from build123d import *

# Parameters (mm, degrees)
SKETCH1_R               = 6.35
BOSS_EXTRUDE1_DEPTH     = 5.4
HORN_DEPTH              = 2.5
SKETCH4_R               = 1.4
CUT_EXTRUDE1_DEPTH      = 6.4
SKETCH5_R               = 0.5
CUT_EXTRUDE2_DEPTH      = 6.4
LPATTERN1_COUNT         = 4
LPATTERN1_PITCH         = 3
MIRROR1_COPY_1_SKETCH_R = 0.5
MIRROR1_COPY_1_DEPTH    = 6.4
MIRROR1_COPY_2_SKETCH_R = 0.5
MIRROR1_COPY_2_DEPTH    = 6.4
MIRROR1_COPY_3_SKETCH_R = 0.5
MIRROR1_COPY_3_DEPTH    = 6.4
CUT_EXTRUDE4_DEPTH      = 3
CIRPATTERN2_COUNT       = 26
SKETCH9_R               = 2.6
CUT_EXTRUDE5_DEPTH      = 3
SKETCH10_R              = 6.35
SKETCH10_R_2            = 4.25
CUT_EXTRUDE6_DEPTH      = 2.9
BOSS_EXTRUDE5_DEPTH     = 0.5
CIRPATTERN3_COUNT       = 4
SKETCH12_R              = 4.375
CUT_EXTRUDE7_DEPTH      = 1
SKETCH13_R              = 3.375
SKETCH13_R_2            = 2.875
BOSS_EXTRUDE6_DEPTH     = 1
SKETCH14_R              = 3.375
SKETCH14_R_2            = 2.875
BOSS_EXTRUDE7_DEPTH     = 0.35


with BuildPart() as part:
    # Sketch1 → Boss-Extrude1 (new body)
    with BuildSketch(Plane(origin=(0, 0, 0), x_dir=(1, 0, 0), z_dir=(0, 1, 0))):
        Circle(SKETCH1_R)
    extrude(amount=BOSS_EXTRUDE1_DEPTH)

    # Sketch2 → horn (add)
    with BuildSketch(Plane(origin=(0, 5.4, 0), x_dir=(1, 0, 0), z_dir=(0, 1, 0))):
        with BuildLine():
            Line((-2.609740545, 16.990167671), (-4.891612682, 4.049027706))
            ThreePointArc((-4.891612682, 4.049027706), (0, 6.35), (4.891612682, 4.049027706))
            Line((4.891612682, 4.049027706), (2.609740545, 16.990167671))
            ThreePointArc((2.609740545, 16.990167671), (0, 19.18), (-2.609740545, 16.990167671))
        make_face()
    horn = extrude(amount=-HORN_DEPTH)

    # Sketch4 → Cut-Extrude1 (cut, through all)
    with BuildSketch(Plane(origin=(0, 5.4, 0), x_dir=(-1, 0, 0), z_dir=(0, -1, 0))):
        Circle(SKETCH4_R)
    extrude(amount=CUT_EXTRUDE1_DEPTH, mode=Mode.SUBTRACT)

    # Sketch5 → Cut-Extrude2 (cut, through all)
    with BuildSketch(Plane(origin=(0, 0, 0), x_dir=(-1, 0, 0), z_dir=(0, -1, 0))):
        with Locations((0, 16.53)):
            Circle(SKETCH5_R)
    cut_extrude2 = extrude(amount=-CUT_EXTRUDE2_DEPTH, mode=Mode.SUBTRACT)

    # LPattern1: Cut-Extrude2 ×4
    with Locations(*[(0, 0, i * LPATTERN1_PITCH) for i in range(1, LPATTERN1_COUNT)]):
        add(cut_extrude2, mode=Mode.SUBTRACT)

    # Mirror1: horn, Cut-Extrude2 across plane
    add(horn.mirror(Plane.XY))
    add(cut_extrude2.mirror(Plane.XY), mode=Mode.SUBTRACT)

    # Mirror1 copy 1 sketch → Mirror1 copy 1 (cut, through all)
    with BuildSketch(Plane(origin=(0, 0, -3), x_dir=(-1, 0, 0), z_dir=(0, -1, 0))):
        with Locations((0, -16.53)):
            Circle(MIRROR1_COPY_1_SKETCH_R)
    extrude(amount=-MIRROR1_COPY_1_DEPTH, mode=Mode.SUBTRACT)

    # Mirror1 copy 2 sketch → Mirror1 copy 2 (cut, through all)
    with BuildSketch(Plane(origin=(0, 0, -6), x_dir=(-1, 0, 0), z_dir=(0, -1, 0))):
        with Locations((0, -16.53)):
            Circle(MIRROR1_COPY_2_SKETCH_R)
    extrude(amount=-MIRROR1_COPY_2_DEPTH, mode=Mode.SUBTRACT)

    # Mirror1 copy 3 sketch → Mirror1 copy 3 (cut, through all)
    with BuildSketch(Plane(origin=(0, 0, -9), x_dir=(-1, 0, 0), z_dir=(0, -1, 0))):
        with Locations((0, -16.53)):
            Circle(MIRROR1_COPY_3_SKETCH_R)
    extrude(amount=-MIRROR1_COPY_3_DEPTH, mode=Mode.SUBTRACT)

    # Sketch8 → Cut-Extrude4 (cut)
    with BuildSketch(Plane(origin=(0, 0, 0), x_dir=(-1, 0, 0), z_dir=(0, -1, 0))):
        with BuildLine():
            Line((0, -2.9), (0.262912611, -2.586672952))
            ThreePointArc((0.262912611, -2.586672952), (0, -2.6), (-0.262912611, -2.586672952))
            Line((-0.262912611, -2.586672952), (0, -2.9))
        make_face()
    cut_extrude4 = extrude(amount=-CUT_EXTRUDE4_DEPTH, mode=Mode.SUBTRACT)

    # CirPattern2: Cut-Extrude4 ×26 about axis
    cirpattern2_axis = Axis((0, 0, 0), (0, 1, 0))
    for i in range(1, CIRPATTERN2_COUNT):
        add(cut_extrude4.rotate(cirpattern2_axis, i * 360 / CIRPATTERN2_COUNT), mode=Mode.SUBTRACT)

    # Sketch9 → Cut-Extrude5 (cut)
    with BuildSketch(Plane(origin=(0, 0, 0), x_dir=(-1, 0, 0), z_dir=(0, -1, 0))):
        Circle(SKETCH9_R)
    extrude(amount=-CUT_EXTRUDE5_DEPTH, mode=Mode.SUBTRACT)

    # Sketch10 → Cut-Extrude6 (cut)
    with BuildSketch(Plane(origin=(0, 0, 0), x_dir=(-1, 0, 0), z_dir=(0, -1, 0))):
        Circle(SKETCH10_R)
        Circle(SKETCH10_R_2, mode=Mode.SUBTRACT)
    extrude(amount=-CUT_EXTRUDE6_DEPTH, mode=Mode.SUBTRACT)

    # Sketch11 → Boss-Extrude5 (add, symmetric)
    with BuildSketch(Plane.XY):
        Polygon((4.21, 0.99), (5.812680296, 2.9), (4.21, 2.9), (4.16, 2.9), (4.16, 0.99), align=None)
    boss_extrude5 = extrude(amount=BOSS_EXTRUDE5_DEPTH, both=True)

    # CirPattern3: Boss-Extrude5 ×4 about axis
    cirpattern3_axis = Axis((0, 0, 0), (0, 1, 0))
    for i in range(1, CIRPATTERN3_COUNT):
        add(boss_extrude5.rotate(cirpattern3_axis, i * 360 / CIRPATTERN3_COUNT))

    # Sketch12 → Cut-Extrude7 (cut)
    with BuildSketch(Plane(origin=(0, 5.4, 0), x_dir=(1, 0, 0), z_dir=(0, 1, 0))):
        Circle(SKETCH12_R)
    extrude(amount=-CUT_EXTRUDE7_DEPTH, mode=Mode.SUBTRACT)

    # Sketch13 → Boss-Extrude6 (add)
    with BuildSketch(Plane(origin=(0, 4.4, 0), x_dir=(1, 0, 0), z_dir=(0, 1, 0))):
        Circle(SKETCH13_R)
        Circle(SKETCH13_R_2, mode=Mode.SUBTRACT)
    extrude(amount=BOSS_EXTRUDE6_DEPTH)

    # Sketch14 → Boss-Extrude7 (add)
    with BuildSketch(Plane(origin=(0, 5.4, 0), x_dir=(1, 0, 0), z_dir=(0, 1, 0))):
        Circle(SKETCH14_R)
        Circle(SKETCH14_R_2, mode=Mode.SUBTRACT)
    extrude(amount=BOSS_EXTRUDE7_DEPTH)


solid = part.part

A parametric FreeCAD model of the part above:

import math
import FreeCAD as App
import Part
import Sketcher
from FreeCAD import Vector
Q = App.Units.Quantity

doc = App.newDocument("Part")
params = doc.addObject("Spreadsheet::Sheet", "Params")
for row, (alias, value) in enumerate([
    ("sketch1_diameter", "12.7 mm"),
    ("pad1_length", "5.4 mm"),
    ("sketch2_radius", "6.35 mm"),
    ("sketch2_radius2", "2.65 mm"),
    ("pad2_length", "2.5 mm"),
    ("sketch3_diameter", "2.8 mm"),
    ("sketch4_diameter", "1 mm"),
    ("linearpattern_pitch", "3 mm"),
    ("sketch5_diameter", "1 mm"),
    ("sketch6_diameter", "1 mm"),
    ("sketch7_diameter", "1 mm"),
    ("sketch8_radius", "2.6 mm"),
    ("pocket6_length", "3 mm"),
    ("sketch9_diameter", "5.2 mm"),
    ("pocket7_length", "3 mm"),
    ("sketch10_diameter", "12.7 mm"),
    ("sketch10_diameter2", "8.5 mm"),
    ("pocket8_length", "2.9 mm"),
    ("sketch11_width", "0.05 mm"),
    ("sketch11_height", "1.91 mm"),
    ("pad3_length", "1 mm"),
    ("sketch12_diameter", "8.75 mm"),
    ("pocket9_length", "1 mm"),
    ("sketch13_diameter", "6.75 mm"),
    ("sketch13_diameter2", "5.75 mm"),
    ("pad4_length", "1 mm"),
    ("sketch14_diameter", "6.75 mm"),
    ("sketch14_diameter2", "5.75 mm"),
    ("pad5_length", "0.35 mm"),
], start=1):
    params.set(f"A{row}", alias)
    params.set(f"B{row}", "=" + value)
    params.setAlias(f"B{row}", alias)

body = doc.addObject("PartDesign::Body", "Body")

# Sketch on XZ plane
sketch1 = body.newObject("Sketcher::SketchObject", "Sketch")
sketch1.AttachmentSupport = (doc.getObject("XZ_Plane"), [""])
sketch1.MapMode = "FlatFace"
sketch1.addGeometry(Part.Circle(Vector(0, 0, 0), Vector(0, 0, 1), 6), False)
sketch1.addConstraint([
    Sketcher.Constraint("Coincident", 0, 3, -1, 1),
    Sketcher.Constraint("Diameter", 0, Q("12.7 mm")),
])
sketch1.setExpression("Constraints[1]", "Params.sketch1_diameter")
pad1 = body.newObject("PartDesign::Pad", "Pad")
pad1.Profile = sketch1
pad1.setExpression("Length", "Params.pad1_length")
pad1.Reversed = True

# Sketch on XZ plane
sketch2 = body.newObject("Sketcher::SketchObject", "Sketch001")
sketch2.AttachmentSupport = (doc.getObject("XZ_Plane"), [""])
sketch2.MapMode = "FlatFace"
sketch2.AttachmentOffset = App.Placement(Vector(0, 0, -5.4), App.Rotation())
sketch2.addGeometry([
    Part.LineSegment(Vector(-2.6, -17, 0), Vector(-4.9, -4, 0)),
    Part.ArcOfCircle(Part.Circle(Vector(0, 0, 0), Vector(0, 0, 1), 6.3), math.radians(-140), math.radians(-40)),
    Part.LineSegment(Vector(4.9, -4, 0), Vector(2.6, -17, 0)),
    Part.ArcOfCircle(Part.Circle(Vector(0, -16.5, 0), Vector(0, 0, 1), 2.6), math.radians(-170), math.radians(-10)),
], False)
sketch2.addConstraint([
    Sketcher.Constraint("Coincident", 0, 2, 1, 1),
    Sketcher.Constraint("Coincident", 1, 2, 2, 1),
    Sketcher.Constraint("Tangent", 2, 2, 3, 2),
    Sketcher.Constraint("Tangent", 3, 1, 0, 1),
    Sketcher.Constraint("Coincident", 1, 3, -1, 1),
    Sketcher.Constraint("Symmetric", 2, 2, 3, 1, -2),
    Sketcher.Constraint("Angle", 0, Q("100 deg")),
    Sketcher.Constraint("Radius", 1, Q("6.35 mm")),
    Sketcher.Constraint("Radius", 3, Q("2.65 mm")),
    Sketcher.Constraint("DistanceY", 3, 3, -1, 1, Q("16.53 mm")),
])
sketch2.setExpression("Constraints[7]", "Params.sketch2_radius")
sketch2.setExpression("Constraints[8]", "Params.sketch2_radius2")
pad2 = body.newObject("PartDesign::Pad", "Pad001")
pad2.Profile = sketch2
pad2.setExpression("Length", "Params.pad2_length")

# Sketch on XZ plane
sketch3 = body.newObject("Sketcher::SketchObject", "Sketch002")
sketch3.AttachmentSupport = (doc.getObject("XZ_Plane"), [""])
sketch3.MapMode = "FlatFace"
sketch3.AttachmentOffset = App.Placement(Vector(0, 0, -5.4), App.Rotation())
sketch3.addGeometry(Part.Circle(Vector(0, 0, 0), Vector(0, 0, 1), 1.4), False)
sketch3.addConstraint([
    Sketcher.Constraint("Coincident", 0, 3, -1, 1),
    Sketcher.Constraint("Diameter", 0, Q("2.8 mm")),
])
sketch3.setExpression("Constraints[1]", "Params.sketch3_diameter")
pocket1 = body.newObject("PartDesign::Pocket", "Pocket")
pocket1.Profile = sketch3
pocket1.Type = "ThroughAll"
pocket1.Reversed = True

# Sketch on XZ plane
sketch4 = body.newObject("Sketcher::SketchObject", "Sketch003")
sketch4.AttachmentSupport = (doc.getObject("XZ_Plane"), [""])
sketch4.MapMode = "FlatFace"
sketch4.addGeometry(Part.Circle(Vector(0, -16.5, 0), Vector(0, 0, 1), 0.5), False)
sketch4.addConstraint([
    Sketcher.Constraint("PointOnObject", 0, 3, -2),
    Sketcher.Constraint("Diameter", 0, Q("1 mm")),
    Sketcher.Constraint("DistanceY", 0, 3, -1, 1, Q("16.53 mm")),
])
sketch4.setExpression("Constraints[1]", "Params.sketch4_diameter")
pocket2 = body.newObject("PartDesign::Pocket", "Pocket001")
pocket2.Profile = sketch4
pocket2.Type = "ThroughAll"
doc.recompute()

linearpattern = body.newObject("PartDesign::LinearPattern", "LinearPattern")
linearpattern.Originals = [pocket2]
linearpattern.Direction = (doc.getObject("Z_Axis"), [""])
linearpattern.Mode = "offset"
linearpattern.setExpression("Offset", "Params.linearpattern_pitch")
linearpattern.Occurrences = 4
body.Tip = linearpattern
doc.recompute()

mirrored = body.newObject("PartDesign::Mirrored", "Mirrored")
mirrored.Originals = [pad2, pocket2]
mirrored.MirrorPlane = (doc.getObject("XY_Plane"), [""])
body.Tip = mirrored

# Sketch on XZ plane
sketch5 = body.newObject("Sketcher::SketchObject", "Sketch004")
sketch5.AttachmentSupport = (doc.getObject("XZ_Plane"), [""])
sketch5.MapMode = "FlatFace"
sketch5.addGeometry(Part.Circle(Vector(0, 13.5, 0), Vector(0, 0, 1), 0.5), False)
sketch5.addConstraint([
    Sketcher.Constraint("PointOnObject", 0, 3, -2),
    Sketcher.Constraint("Diameter", 0, Q("1 mm")),
    Sketcher.Constraint("DistanceY", -1, 1, 0, 3, Q("13.53 mm")),
])
sketch5.setExpression("Constraints[1]", "Params.sketch5_diameter")
pocket3 = body.newObject("PartDesign::Pocket", "Pocket002")
pocket3.Profile = sketch5
pocket3.Type = "ThroughAll"

# Sketch on XZ plane
sketch6 = body.newObject("Sketcher::SketchObject", "Sketch005")
sketch6.AttachmentSupport = (doc.getObject("XZ_Plane"), [""])
sketch6.MapMode = "FlatFace"
sketch6.addGeometry(Part.Circle(Vector(0, 10.5, 0), Vector(0, 0, 1), 0.5), False)
sketch6.addConstraint([
    Sketcher.Constraint("PointOnObject", 0, 3, -2),
    Sketcher.Constraint("Diameter", 0, Q("1 mm")),
    Sketcher.Constraint("DistanceY", -1, 1, 0, 3, Q("10.53 mm")),
])
sketch6.setExpression("Constraints[1]", "Params.sketch6_diameter")
pocket4 = body.newObject("PartDesign::Pocket", "Pocket003")
pocket4.Profile = sketch6
pocket4.Type = "ThroughAll"

# Sketch on XZ plane
sketch7 = body.newObject("Sketcher::SketchObject", "Sketch006")
sketch7.AttachmentSupport = (doc.getObject("XZ_Plane"), [""])
sketch7.MapMode = "FlatFace"
sketch7.addGeometry(Part.Circle(Vector(0, 7.5, 0), Vector(0, 0, 1), 0.5), False)
sketch7.addConstraint([
    Sketcher.Constraint("PointOnObject", 0, 3, -2),
    Sketcher.Constraint("Diameter", 0, Q("1 mm")),
    Sketcher.Constraint("DistanceY", -1, 1, 0, 3, Q("7.53 mm")),
])
sketch7.setExpression("Constraints[1]", "Params.sketch7_diameter")
pocket5 = body.newObject("PartDesign::Pocket", "Pocket004")
pocket5.Profile = sketch7
pocket5.Type = "ThroughAll"

# Sketch on XZ plane
sketch8 = body.newObject("Sketcher::SketchObject", "Sketch007")
sketch8.AttachmentSupport = (doc.getObject("XZ_Plane"), [""])
sketch8.MapMode = "FlatFace"
sketch8.addGeometry([
    Part.LineSegment(Vector(0, 2.9, 0), Vector(-0.26, 2.59, 0)),
    Part.ArcOfCircle(Part.Circle(Vector(0, 0, 0), Vector(0, 0, 1), 2.6), math.radians(84.2), math.radians(95.8)),
    Part.LineSegment(Vector(0.26, 2.59, 0), Vector(0, 2.9, 0)),
], False)
sketch8.addConstraint([
    Sketcher.Constraint("Coincident", 0, 2, 1, 2),
    Sketcher.Constraint("Coincident", 1, 1, 2, 1),
    Sketcher.Constraint("Coincident", 2, 2, 0, 1),
    Sketcher.Constraint("Coincident", 1, 3, -1, 1),
    Sketcher.Constraint("PointOnObject", 2, 2, -2),
    Sketcher.Constraint("Horizontal", 0, 2, 1, 1),
    Sketcher.Constraint("Radius", 1, Q("2.6 mm")),
    Sketcher.Constraint("Angle", 0, Q("-130 deg")),
    Sketcher.Constraint("DistanceY", -1, 1, 2, 2, Q("2.9 mm")),
])
sketch8.setExpression("Constraints[6]", "Params.sketch8_radius")
pocket6 = body.newObject("PartDesign::Pocket", "Pocket005")
pocket6.Profile = sketch8
pocket6.setExpression("Length", "Params.pocket6_length")
doc.recompute()

polarpattern = body.newObject("PartDesign::PolarPattern", "PolarPattern")
polarpattern.Originals = [pocket6]
polarpattern.Axis = (doc.getObject("Y_Axis"), [""])
polarpattern.Angle = 360
polarpattern.Occurrences = 26
body.Tip = polarpattern

# Sketch on XZ plane
sketch9 = body.newObject("Sketcher::SketchObject", "Sketch008")
sketch9.AttachmentSupport = (doc.getObject("XZ_Plane"), [""])
sketch9.MapMode = "FlatFace"
sketch9.addGeometry(Part.Circle(Vector(0, 0, 0), Vector(0, 0, 1), 2.6), False)
sketch9.addConstraint([
    Sketcher.Constraint("Coincident", 0, 3, -1, 1),
    Sketcher.Constraint("Diameter", 0, Q("5.2 mm")),
])
sketch9.setExpression("Constraints[1]", "Params.sketch9_diameter")
pocket7 = body.newObject("PartDesign::Pocket", "Pocket006")
pocket7.Profile = sketch9
pocket7.setExpression("Length", "Params.pocket7_length")

# Sketch on XZ plane
sketch10 = body.newObject("Sketcher::SketchObject", "Sketch009")
sketch10.AttachmentSupport = (doc.getObject("XZ_Plane"), [""])
sketch10.MapMode = "FlatFace"
sketch10.addGeometry([
    Part.Circle(Vector(0, 0, 0), Vector(0, 0, 1), 6.3),
    Part.Circle(Vector(0, 0, 0), Vector(0, 0, 1), 4.2),
], False)
sketch10.addConstraint([
    Sketcher.Constraint("Coincident", 0, 3, -1, 1),
    Sketcher.Constraint("Coincident", 1, 3, -1, 1),
    Sketcher.Constraint("Diameter", 0, Q("12.7 mm")),
    Sketcher.Constraint("Diameter", 1, Q("8.5 mm")),
])
sketch10.setExpression("Constraints[2]", "Params.sketch10_diameter")
sketch10.setExpression("Constraints[3]", "Params.sketch10_diameter2")
pocket8 = body.newObject("PartDesign::Pocket", "Pocket007")
pocket8.Profile = sketch10
pocket8.setExpression("Length", "Params.pocket8_length")

# Sketch on XY plane
sketch11 = body.newObject("Sketcher::SketchObject", "Sketch010")
sketch11.AttachmentSupport = (doc.getObject("XY_Plane"), [""])
sketch11.MapMode = "FlatFace"
sketch11.addGeometry([
    Part.LineSegment(Vector(4.21, 0.99, 0), Vector(5.813, 2.9, 0)),
    Part.LineSegment(Vector(5.813, 2.9, 0), Vector(4.16, 2.9, 0)),
    Part.LineSegment(Vector(4.16, 2.9, 0), Vector(4.16, 0.99, 0)),
    Part.LineSegment(Vector(4.16, 0.99, 0), Vector(4.21, 0.99, 0)),
], False)
sketch11.addConstraint([
    Sketcher.Constraint("Coincident", 0, 2, 1, 1),
    Sketcher.Constraint("Coincident", 1, 2, 2, 1),
    Sketcher.Constraint("Coincident", 2, 2, 3, 1),
    Sketcher.Constraint("Coincident", 3, 2, 0, 1),
    Sketcher.Constraint("Horizontal", 1),
    Sketcher.Constraint("Vertical", 2),
    Sketcher.Constraint("Horizontal", 3),
    Sketcher.Constraint("Angle", 0, Q("50 deg")),
    Sketcher.Constraint("DistanceX", 3, 1, 3, 2, Q("0.05 mm")),
    Sketcher.Constraint("DistanceY", 2, 2, 2, 1, Q("1.91 mm")),
    Sketcher.Constraint("DistanceY", -1, 1, 0, 2, Q("2.9 mm")),
    Sketcher.Constraint("DistanceX", -1, 1, 1, 2, Q("4.16 mm")),
])
sketch11.setExpression("Constraints[8]", "Params.sketch11_width")
sketch11.setExpression("Constraints[9]", "Params.sketch11_height")
pad3 = body.newObject("PartDesign::Pad", "Pad002")
pad3.Profile = sketch11
pad3.setExpression("Length", "Params.pad3_length")
pad3.Midplane = True
doc.recompute()

polarpattern2 = body.newObject("PartDesign::PolarPattern", "PolarPattern001")
polarpattern2.Originals = [pad3]
polarpattern2.Axis = (doc.getObject("Y_Axis"), [""])
polarpattern2.Angle = 360
polarpattern2.Occurrences = 4
body.Tip = polarpattern2

# Sketch on XZ plane
sketch12 = body.newObject("Sketcher::SketchObject", "Sketch011")
sketch12.AttachmentSupport = (doc.getObject("XZ_Plane"), [""])
sketch12.MapMode = "FlatFace"
sketch12.AttachmentOffset = App.Placement(Vector(0, 0, -5.4), App.Rotation())
sketch12.addGeometry(Part.Circle(Vector(0, 0, 0), Vector(0, 0, 1), 4.4), False)
sketch12.addConstraint([
    Sketcher.Constraint("Coincident", 0, 3, -1, 1),
    Sketcher.Constraint("Diameter", 0, Q("8.75 mm")),
])
sketch12.setExpression("Constraints[1]", "Params.sketch12_diameter")
pocket9 = body.newObject("PartDesign::Pocket", "Pocket008")
pocket9.Profile = sketch12
pocket9.setExpression("Length", "Params.pocket9_length")
pocket9.Reversed = True

# Sketch on XZ plane
sketch13 = body.newObject("Sketcher::SketchObject", "Sketch012")
sketch13.AttachmentSupport = (doc.getObject("XZ_Plane"), [""])
sketch13.MapMode = "FlatFace"
sketch13.AttachmentOffset = App.Placement(Vector(0, 0, -4.4), App.Rotation())
sketch13.addGeometry([
    Part.Circle(Vector(0, 0, 0), Vector(0, 0, 1), 3.4),
    Part.Circle(Vector(0, 0, 0), Vector(0, 0, 1), 2.9),
], False)
sketch13.addConstraint([
    Sketcher.Constraint("Coincident", 0, 3, -1, 1),
    Sketcher.Constraint("Coincident", 1, 3, -1, 1),
    Sketcher.Constraint("Diameter", 0, Q("6.75 mm")),
    Sketcher.Constraint("Diameter", 1, Q("5.75 mm")),
])
sketch13.setExpression("Constraints[2]", "Params.sketch13_diameter")
sketch13.setExpression("Constraints[3]", "Params.sketch13_diameter2")
pad4 = body.newObject("PartDesign::Pad", "Pad003")
pad4.Profile = sketch13
pad4.setExpression("Length", "Params.pad4_length")
pad4.Reversed = True

# Sketch on XZ plane
sketch14 = body.newObject("Sketcher::SketchObject", "Sketch013")
sketch14.AttachmentSupport = (doc.getObject("XZ_Plane"), [""])
sketch14.MapMode = "FlatFace"
sketch14.AttachmentOffset = App.Placement(Vector(0, 0, -5.4), App.Rotation())
sketch14.addGeometry([
    Part.Circle(Vector(0, 0, 0), Vector(0, 0, 1), 3.4),
    Part.Circle(Vector(0, 0, 0), Vector(0, 0, 1), 2.9),
], False)
sketch14.addConstraint([
    Sketcher.Constraint("Coincident", 0, 3, -1, 1),
    Sketcher.Constraint("Coincident", 1, 3, -1, 1),
    Sketcher.Constraint("Diameter", 0, Q("6.75 mm")),
    Sketcher.Constraint("Diameter", 1, Q("5.75 mm")),
])
sketch14.setExpression("Constraints[2]", "Params.sketch14_diameter")
sketch14.setExpression("Constraints[3]", "Params.sketch14_diameter2")
pad5 = body.newObject("PartDesign::Pad", "Pad004")
pad5.Profile = sketch14
pad5.setExpression("Length", "Params.pad5_length")
pad5.Reversed = True

doc.recompute()
